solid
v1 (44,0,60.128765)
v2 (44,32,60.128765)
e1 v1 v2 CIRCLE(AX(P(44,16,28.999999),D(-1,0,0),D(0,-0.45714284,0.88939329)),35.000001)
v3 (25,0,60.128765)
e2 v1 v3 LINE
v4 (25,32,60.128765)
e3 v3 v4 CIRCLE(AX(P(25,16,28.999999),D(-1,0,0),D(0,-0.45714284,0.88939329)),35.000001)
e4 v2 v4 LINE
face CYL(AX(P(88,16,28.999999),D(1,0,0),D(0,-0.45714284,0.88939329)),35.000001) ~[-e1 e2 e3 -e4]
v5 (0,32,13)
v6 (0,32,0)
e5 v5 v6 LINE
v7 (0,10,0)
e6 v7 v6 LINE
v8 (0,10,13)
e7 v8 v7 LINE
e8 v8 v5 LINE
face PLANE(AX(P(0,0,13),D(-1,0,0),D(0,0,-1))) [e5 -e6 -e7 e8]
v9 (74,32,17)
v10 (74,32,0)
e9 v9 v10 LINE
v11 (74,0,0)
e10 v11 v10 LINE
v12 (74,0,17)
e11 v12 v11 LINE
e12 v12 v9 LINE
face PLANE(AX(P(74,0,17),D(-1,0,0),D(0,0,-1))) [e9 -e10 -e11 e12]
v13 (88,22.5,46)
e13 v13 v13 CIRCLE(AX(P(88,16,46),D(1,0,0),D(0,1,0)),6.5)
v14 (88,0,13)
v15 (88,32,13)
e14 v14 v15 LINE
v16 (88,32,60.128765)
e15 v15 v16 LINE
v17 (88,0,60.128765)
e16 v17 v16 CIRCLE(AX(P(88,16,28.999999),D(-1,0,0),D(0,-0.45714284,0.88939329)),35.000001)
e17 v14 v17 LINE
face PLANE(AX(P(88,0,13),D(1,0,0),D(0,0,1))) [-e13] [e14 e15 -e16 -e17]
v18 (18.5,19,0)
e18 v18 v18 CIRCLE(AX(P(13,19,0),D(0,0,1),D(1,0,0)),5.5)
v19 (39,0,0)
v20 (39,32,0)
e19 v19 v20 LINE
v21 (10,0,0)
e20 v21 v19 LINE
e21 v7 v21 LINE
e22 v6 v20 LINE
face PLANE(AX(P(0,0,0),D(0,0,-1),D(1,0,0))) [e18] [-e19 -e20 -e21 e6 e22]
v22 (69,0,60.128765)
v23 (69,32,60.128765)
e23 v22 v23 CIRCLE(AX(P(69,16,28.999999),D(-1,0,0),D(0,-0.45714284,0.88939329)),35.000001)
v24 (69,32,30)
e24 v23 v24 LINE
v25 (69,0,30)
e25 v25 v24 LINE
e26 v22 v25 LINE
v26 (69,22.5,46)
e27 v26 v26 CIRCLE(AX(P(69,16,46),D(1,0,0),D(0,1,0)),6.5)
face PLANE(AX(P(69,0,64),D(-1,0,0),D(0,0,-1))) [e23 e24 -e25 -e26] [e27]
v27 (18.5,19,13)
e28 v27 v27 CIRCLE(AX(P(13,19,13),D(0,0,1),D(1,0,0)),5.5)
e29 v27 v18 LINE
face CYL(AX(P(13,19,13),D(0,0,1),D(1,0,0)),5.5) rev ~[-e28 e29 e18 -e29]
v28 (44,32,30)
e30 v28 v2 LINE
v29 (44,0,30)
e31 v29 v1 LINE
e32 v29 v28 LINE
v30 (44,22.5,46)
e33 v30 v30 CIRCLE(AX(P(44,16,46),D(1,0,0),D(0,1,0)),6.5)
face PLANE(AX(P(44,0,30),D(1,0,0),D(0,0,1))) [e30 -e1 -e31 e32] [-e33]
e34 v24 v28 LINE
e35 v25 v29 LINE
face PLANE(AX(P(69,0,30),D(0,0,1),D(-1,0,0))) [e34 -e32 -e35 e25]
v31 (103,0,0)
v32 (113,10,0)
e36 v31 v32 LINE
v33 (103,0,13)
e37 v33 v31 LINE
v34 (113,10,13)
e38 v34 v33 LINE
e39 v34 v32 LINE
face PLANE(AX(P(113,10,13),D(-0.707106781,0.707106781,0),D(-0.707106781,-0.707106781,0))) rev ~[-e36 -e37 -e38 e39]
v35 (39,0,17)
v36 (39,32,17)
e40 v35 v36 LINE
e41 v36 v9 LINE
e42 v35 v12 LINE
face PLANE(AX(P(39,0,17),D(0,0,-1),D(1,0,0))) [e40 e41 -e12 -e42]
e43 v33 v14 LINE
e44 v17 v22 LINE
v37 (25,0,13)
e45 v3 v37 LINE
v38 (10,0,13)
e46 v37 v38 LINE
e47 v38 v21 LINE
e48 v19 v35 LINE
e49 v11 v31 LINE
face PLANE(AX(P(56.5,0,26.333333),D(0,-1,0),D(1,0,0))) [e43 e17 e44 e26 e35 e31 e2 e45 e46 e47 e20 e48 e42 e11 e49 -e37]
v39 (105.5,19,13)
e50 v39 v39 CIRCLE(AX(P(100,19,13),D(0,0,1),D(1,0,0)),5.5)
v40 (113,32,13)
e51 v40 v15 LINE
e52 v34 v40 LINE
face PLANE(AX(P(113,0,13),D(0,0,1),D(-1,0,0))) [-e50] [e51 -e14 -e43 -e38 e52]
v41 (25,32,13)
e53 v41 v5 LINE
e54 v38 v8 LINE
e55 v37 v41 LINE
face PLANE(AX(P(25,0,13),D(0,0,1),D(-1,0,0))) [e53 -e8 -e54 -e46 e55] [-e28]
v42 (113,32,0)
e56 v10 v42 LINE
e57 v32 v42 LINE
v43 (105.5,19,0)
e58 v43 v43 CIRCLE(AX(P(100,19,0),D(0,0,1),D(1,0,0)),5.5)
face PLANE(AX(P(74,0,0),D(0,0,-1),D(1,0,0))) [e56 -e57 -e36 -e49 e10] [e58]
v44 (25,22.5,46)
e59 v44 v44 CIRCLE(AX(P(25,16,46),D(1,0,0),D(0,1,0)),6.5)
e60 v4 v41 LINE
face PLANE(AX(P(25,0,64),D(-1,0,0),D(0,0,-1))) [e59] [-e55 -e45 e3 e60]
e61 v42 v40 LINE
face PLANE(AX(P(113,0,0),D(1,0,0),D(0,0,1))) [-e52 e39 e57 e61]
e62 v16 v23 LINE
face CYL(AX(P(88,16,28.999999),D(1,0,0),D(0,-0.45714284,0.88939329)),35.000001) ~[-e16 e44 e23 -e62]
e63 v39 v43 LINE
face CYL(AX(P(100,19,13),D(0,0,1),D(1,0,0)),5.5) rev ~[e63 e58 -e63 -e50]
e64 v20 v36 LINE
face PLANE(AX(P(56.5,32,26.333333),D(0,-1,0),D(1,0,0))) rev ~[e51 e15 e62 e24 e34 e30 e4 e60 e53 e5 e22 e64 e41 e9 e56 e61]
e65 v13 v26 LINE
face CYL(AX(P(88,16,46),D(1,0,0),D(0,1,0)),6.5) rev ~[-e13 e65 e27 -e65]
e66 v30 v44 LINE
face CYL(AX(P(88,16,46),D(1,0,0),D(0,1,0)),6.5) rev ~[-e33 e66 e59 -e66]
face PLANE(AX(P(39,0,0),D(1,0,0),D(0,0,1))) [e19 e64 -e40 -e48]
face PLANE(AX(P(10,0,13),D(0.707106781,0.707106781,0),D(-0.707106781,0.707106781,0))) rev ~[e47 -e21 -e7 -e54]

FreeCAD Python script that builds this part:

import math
import FreeCAD as App
import Part
import Sketcher
from FreeCAD import Vector
Q = App.Units.Quantity

doc = App.newDocument("Part")
params = doc.addObject("Spreadsheet::Sheet", "Params")
for row, (alias, value) in enumerate([
    ("sketch1_width", "39 mm"),
    ("sketch1_width2", "35 mm"),
    ("sketch1_width3", "25 mm"),
    ("sketch1_height", "13 mm"),
    ("sketch1_height2", "17 mm"),
    ("pad1_length", "32 mm"),
    ("sketch2_diameter", "11 mm"),
    ("sketch3_diameter", "11 mm"),
    ("sketch4_width", "10 mm"),
    ("sketch5_width", "10 mm"),
    ("sketch6_diameter", "13 mm"),
    ("sketch7_radius", "35.000001 mm"),
    ("sketch7_width", "32 mm"),
    ("sketch7_height", "10 mm"),
], start=1):
    params.set(f"A{row}", alias)
    params.set(f"B{row}", "=" + value)
    params.setAlias(f"B{row}", alias)

body = doc.addObject("PartDesign::Body", "Body")

# Sketch on XZ plane
sketch1 = body.newObject("Sketcher::SketchObject", "Sketch")
sketch1.AttachmentSupport = (doc.getObject("XZ_Plane"), [""])
sketch1.MapMode = "FlatFace"
sketch1.addGeometry(Part.LineSegment(Vector(0, 13, 0), Vector(0, 0, 0)), False)
sketch1.addGeometry(Part.LineSegment(Vector(0, 0, 0), Vector(39, 0, 0)), False)
sketch1.addGeometry(Part.LineSegment(Vector(39, 0, 0), Vector(39, 17, 0)), False)
sketch1.addGeometry(Part.LineSegment(Vector(39, 17, 0), Vector(74, 17, 0)), False)
sketch1.addGeometry(Part.LineSegment(Vector(74, 17, 0), Vector(74, 0, 0)), False)
sketch1.addGeometry(Part.LineSegment(Vector(74, 0, 0), Vector(113, 0, 0)), False)
sketch1.addGeometry(Part.LineSegment(Vector(113, 0, 0), Vector(113, 13, 0)), False)
sketch1.addGeometry(Part.LineSegment(Vector(113, 13, 0), Vector(88, 13, 0)), False)
sketch1.addGeometry(Part.LineSegment(Vector(88, 13, 0), Vector(88, 64, 0)), False)
sketch1.addGeometry(Part.LineSegment(Vector(88, 64, 0), Vector(69, 64, 0)), False)
sketch1.addGeometry(Part.LineSegment(Vector(69, 64, 0), Vector(69, 30, 0)), False)
sketch1.addGeometry(Part.LineSegment(Vector(69, 30, 0), Vector(44, 30, 0)), False)
sketch1.addGeometry(Part.LineSegment(Vector(44, 30, 0), Vector(44, 64, 0)), False)
sketch1.addGeometry(Part.LineSegment(Vector(44, 64, 0), Vector(25, 64, 0)), False)
sketch1.addGeometry(Part.LineSegment(Vector(25, 64, 0), Vector(25, 13, 0)), False)
sketch1.addGeometry(Part.LineSegment(Vector(25, 13, 0), Vector(0, 13, 0)), False)
sketch1.addConstraint(Sketcher.Constraint("Coincident", 0, 2, 1, 1))
sketch1.addConstraint(Sketcher.Constraint("Coincident", 1, 2, 2, 1))
sketch1.addConstraint(Sketcher.Constraint("Coincident", 2, 2, 3, 1))
sketch1.addConstraint(Sketcher.Constraint("Coincident", 3, 2, 4, 1))
sketch1.addConstraint(Sketcher.Constraint("Coincident", 4, 2, 5, 1))
sketch1.addConstraint(Sketcher.Constraint("Coincident", 5, 2, 6, 1))
sketch1.addConstraint(Sketcher.Constraint("Coincident", 6, 2, 7, 1))
sketch1.addConstraint(Sketcher.Constraint("Coincident", 7, 2, 8, 1))
sketch1.addConstraint(Sketcher.Constraint("Coincident", 8, 2, 9, 1))
sketch1.addConstraint(Sketcher.Constraint("Coincident", 9, 2, 10, 1))
sketch1.addConstraint(Sketcher.Constraint("Coincident", 10, 2, 11, 1))
sketch1.addConstraint(Sketcher.Constraint("Coincident", 11, 2, 12, 1))
sketch1.addConstraint(Sketcher.Constraint("Coincident", 12, 2, 13, 1))
sketch1.addConstraint(Sketcher.Constraint("Coincident", 13, 2, 14, 1))
sketch1.addConstraint(Sketcher.Constraint("Coincident", 14, 2, 15, 1))
sketch1.addConstraint(Sketcher.Constraint("Coincident", 15, 2, 0, 1))
sketch1.addConstraint(Sketcher.Constraint("Vertical", 0))
sketch1.addConstraint(Sketcher.Constraint("Horizontal", 1))
sketch1.addConstraint(Sketcher.Constraint("Vertical", 2))
sketch1.addConstraint(Sketcher.Constraint("Horizontal", 3))
sketch1.addConstraint(Sketcher.Constraint("Vertical", 4))
sketch1.addConstraint(Sketcher.Constraint("Horizontal", 5))
sketch1.addConstraint(Sketcher.Constraint("Vertical", 6))
sketch1.addConstraint(Sketcher.Constraint("Horizontal", 7))
sketch1.addConstraint(Sketcher.Constraint("Vertical", 8))
sketch1.addConstraint(Sketcher.Constraint("Horizontal", 9))
sketch1.addConstraint(Sketcher.Constraint("Vertical", 10))
sketch1.addConstraint(Sketcher.Constraint("Horizontal", 11))
sketch1.addConstraint(Sketcher.Constraint("Vertical", 12))
sketch1.addConstraint(Sketcher.Constraint("Horizontal", 13))
sketch1.addConstraint(Sketcher.Constraint("Vertical", 14))
sketch1.addConstraint(Sketcher.Constraint("Horizontal", 15))
sketch1.addConstraint(Sketcher.Constraint("Coincident", 0, 2, -1, 1))
sketch1.addConstraint(Sketcher.Constraint("PointOnObject", 4, 2, -1))
sketch1.addConstraint(Sketcher.Constraint("Horizontal", 9, 2, 12, 2))
sketch1.addConstraint(Sketcher.Constraint("Horizontal", 7, 2, 14, 2))
sketch1.addConstraint(Sketcher.Constraint("Equal", 1, 5))
sketch1.addConstraint(Sketcher.Constraint("Equal", 7, 11))
sketch1.addConstraint(Sketcher.Constraint("Equal", 9, 13))
sketch1.addConstraint(Sketcher.Constraint("Equal", 11, 15))
sketch1.addConstraint(Sketcher.Constraint("DistanceX", 1, 1, 1, 2, Q("39 mm")))
sketch1.addConstraint(Sketcher.Constraint("DistanceX", 3, 1, 3, 2, Q("35 mm")))
sketch1.addConstraint(Sketcher.Constraint("DistanceX", 7, 2, 7, 1, Q("25 mm")))
sketch1.addConstraint(Sketcher.Constraint("DistanceY", 0, 2, 0, 1, Q("13 mm")))
sketch1.addConstraint(Sketcher.Constraint("DistanceY", 2, 1, 2, 2, Q("17 mm")))
sketch1.addConstraint(Sketcher.Constraint("DistanceY", 8, 1, 8, 2, Q("51 mm")))
sketch1.addConstraint(Sketcher.Constraint("DistanceY", 10, 2, 10, 1, Q("34 mm")))
sketch1.setExpression("Constraints[40]", "Params.sketch1_width")
sketch1.setExpression("Constraints[41]", "Params.sketch1_width2")
sketch1.setExpression("Constraints[42]", "Params.sketch1_width3")
sketch1.setExpression("Constraints[43]", "Params.sketch1_height")
sketch1.setExpression("Constraints[44]", "Params.sketch1_height2")
pad1 = body.newObject("PartDesign::Pad", "Pad")
pad1.Profile = sketch1
pad1.setExpression("Length", "Params.pad1_length")
pad1.Reversed = True

# Sketch on XY plane
sketch2 = body.newObject("Sketcher::SketchObject", "Sketch001")
sketch2.AttachmentSupport = (doc.getObject("XY_Plane"), [""])
sketch2.MapMode = "FlatFace"
sketch2.AttachmentOffset = App.Placement(Vector(0, 0, 13), App.Rotation())
sketch2.addGeometry(Part.Circle(Vector(13, 19, 0), Vector(0, 0, 1), 6), False)
sketch2.addConstraint(Sketcher.Constraint("Diameter", 0, Q("11 mm")))
sketch2.addConstraint(Sketcher.Constraint("DistanceX", -1, 1, 0, 3, Q("13 mm")))
sketch2.addConstraint(Sketcher.Constraint("DistanceY", -1, 1, 0, 3, Q("19 mm")))
sketch2.setExpression("Constraints[0]", "Params.sketch2_diameter")
pocket1 = body.newObject("PartDesign::Pocket", "Pocket")
pocket1.Profile = sketch2
pocket1.Type = "ThroughAll"

# Sketch on XY plane
sketch3 = body.newObject("Sketcher::SketchObject", "Sketch002")
sketch3.AttachmentSupport = (doc.getObject("XY_Plane"), [""])
sketch3.MapMode = "FlatFace"
sketch3.AttachmentOffset = App.Placement(Vector(0, 0, 13), App.Rotation())
sketch3.addGeometry(Part.Circle(Vector(100, 19, 0), Vector(0, 0, 1), 6), False)
sketch3.addConstraint(Sketcher.Constraint("Diameter", 0, Q("11 mm")))
sketch3.addConstraint(Sketcher.Constraint("DistanceX", -1, 1, 0, 3, Q("100 mm")))
sketch3.addConstraint(Sketcher.Constraint("DistanceY", -1, 1, 0, 3, Q("19 mm")))
sketch3.setExpression("Constraints[0]", "Params.sketch3_diameter")
pocket2 = body.newObject("PartDesign::Pocket", "Pocket001")
pocket2.Profile = sketch3
pocket2.Type = "ThroughAll"

# Sketch on XY plane
sketch4 = body.newObject("Sketcher::SketchObject", "Sketch003")
sketch4.AttachmentSupport = (doc.getObject("XY_Plane"), [""])
sketch4.MapMode = "FlatFace"
sketch4.AttachmentOffset = App.Placement(Vector(0, 0, 13), App.Rotation())
sketch4.addGeometry(Part.LineSegment(Vector(0, 10, 0), Vector(0, 0, 0)), False)
sketch4.addGeometry(Part.LineSegment(Vector(0, 0, 0), Vector(10, 0, 0)), False)
sketch4.addGeometry(Part.LineSegment(Vector(10, 0, 0), Vector(0, 10, 0)), False)
sketch4.addConstraint(Sketcher.Constraint("Coincident", 0, 2, 1, 1))
sketch4.addConstraint(Sketcher.Constraint("Coincident", 1, 2, 2, 1))
sketch4.addConstraint(Sketcher.Constraint("Coincident", 2, 2, 0, 1))
sketch4.addConstraint(Sketcher.Constraint("Vertical", 0))
sketch4.addConstraint(Sketcher.Constraint("Horizontal", 1))
sketch4.addConstraint(Sketcher.Constraint("Coincident", 0, 2, -1, 1))
sketch4.addConstraint(Sketcher.Constraint("Equal", 1, 0))
sketch4.addConstraint(Sketcher.Constraint("DistanceX", 1, 1, 1, 2, Q("10 mm")))
sketch4.setExpression("Constraints[7]", "Params.sketch4_width")
pocket3 = body.newObject("PartDesign::Pocket", "Pocket002")
pocket3.Profile = sketch4
pocket3.Type = "ThroughAll"

# Sketch on XY plane
sketch5 = body.newObject("Sketcher::SketchObject", "Sketch004")
sketch5.AttachmentSupport = (doc.getObject("XY_Plane"), [""])
sketch5.MapMode = "FlatFace"
sketch5.AttachmentOffset = App.Placement(Vector(0, 0, 13), App.Rotation())
sketch5.addGeometry(Part.LineSegment(Vector(103, 0, 0), Vector(113, 0, 0)), False)
sketch5.addGeometry(Part.LineSegment(Vector(113, 0, 0), Vector(113, 10, 0)), False)
sketch5.addGeometry(Part.LineSegment(Vector(113, 10, 0), Vector(103, 0, 0)), False)
sketch5.addConstraint(Sketcher.Constraint("Coincident", 0, 2, 1, 1))
sketch5.addConstraint(Sketcher.Constraint("Coincident", 1, 2, 2, 1))
sketch5.addConstraint(Sketcher.Constraint("Coincident", 2, 2, 0, 1))
sketch5.addConstraint(Sketcher.Constraint("Horizontal", 0))
sketch5.addConstraint(Sketcher.Constraint("Vertical", 1))
sketch5.addConstraint(Sketcher.Constraint("PointOnObject", 0, 2, -1))
sketch5.addConstraint(Sketcher.Constraint("Equal", 0, 1))
sketch5.addConstraint(Sketcher.Constraint("DistanceX", 0, 1, 0, 2, Q("10 mm")))
sketch5.addConstraint(Sketcher.Constraint("DistanceX", -1, 1, 0, 2, Q("113 mm")))
sketch5.setExpression("Constraints[7]", "Params.sketch5_width")
pocket4 = body.newObject("PartDesign::Pocket", "Pocket003")
pocket4.Profile = sketch5
pocket4.Type = "ThroughAll"

# Sketch on YZ plane
sketch6 = body.newObject("Sketcher::SketchObject", "Sketch005")
sketch6.AttachmentSupport = (doc.getObject("YZ_Plane"), [""])
sketch6.MapMode = "FlatFace"
sketch6.AttachmentOffset = App.Placement(Vector(0, 0, 88), App.Rotation())
sketch6.addGeometry(Part.Circle(Vector(16, 46, 0), Vector(0, 0, 1), 6), False)
sketch6.addConstraint(Sketcher.Constraint("Diameter", 0, Q("13 mm")))
sketch6.addConstraint(Sketcher.Constraint("DistanceX", -1, 1, 0, 3, Q("16 mm")))
sketch6.addConstraint(Sketcher.Constraint("DistanceY", -1, 1, 0, 3, Q("46 mm")))
sketch6.setExpression("Constraints[0]", "Params.sketch6_diameter")
pocket5 = body.newObject("PartDesign::Pocket", "Pocket004")
pocket5.Profile = sketch6
pocket5.Type = "ThroughAll"

# Sketch on YZ plane
sketch7 = body.newObject("Sketcher::SketchObject", "Sketch006")
sketch7.AttachmentSupport = (doc.getObject("YZ_Plane"), [""])
sketch7.MapMode = "FlatFace"
sketch7.AttachmentOffset = App.Placement(Vector(0, 0, 88), App.Rotation())
sketch7.addGeometry(Part.ArcOfCircle(Part.Circle(Vector(16, 29, 0), Vector(0, 0, 1), 35), math.radians(63), math.radians(117)), False)
sketch7.addGeometry(Part.LineSegment(Vector(32, 60, 0), Vector(32, 70, 0)), False)
sketch7.addGeometry(Part.LineSegment(Vector(32, 70, 0), Vector(0, 70, 0)), False)
sketch7.addGeometry(Part.LineSegment(Vector(0, 70, 0), Vector(0, 60, 0)), False)
sketch7.addConstraint(Sketcher.Constraint("Coincident", 0, 1, 1, 1))
sketch7.addConstraint(Sketcher.Constraint("Coincident", 1, 2, 2, 1))
sketch7.addConstraint(Sketcher.Constraint("Coincident", 2, 2, 3, 1))
sketch7.addConstraint(Sketcher.Constraint("Coincident", 3, 2, 0, 2))
sketch7.addConstraint(Sketcher.Constraint("Vertical", 1))
sketch7.addConstraint(Sketcher.Constraint("Horizontal", 2))
sketch7.addConstraint(Sketcher.Constraint("Vertical", 3))
sketch7.addConstraint(Sketcher.Constraint("PointOnObject", 2, 2, -2))
sketch7.addConstraint(Sketcher.Constraint("Horizontal", 0, 1, 3, 2))
sketch7.addConstraint(Sketcher.Constraint("Radius", 0, Q("35.000001 mm")))
sketch7.addConstraint(Sketcher.Constraint("DistanceX", 2, 2, 2, 1, Q("32 mm")))
sketch7.addConstraint(Sketcher.Constraint("DistanceY", 1, 1, 1, 2, Q("10 mm")))
sketch7.addConstraint(Sketcher.Constraint("DistanceY", -1, 1, 0, 3, Q("28.999999 mm")))
sketch7.setExpression("Constraints[9]", "Params.sketch7_radius")
sketch7.setExpression("Constraints[10]", "Params.sketch7_width")
sketch7.setExpression("Constraints[11]", "Params.sketch7_height")
pocket6 = body.newObject("PartDesign::Pocket", "Pocket005")
pocket6.Profile = sketch7
pocket6.Type = "ThroughAll"

doc.recompute()
